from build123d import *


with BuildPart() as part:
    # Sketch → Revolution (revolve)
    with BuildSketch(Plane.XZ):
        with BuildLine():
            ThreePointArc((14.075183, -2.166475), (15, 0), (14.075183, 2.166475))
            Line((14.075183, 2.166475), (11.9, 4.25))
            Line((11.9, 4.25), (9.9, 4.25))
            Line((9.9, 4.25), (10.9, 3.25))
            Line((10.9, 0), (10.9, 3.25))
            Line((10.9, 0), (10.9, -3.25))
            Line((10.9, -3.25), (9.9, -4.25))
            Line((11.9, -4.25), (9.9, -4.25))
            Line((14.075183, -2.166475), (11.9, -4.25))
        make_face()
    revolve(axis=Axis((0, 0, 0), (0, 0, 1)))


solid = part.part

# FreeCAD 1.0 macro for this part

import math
import FreeCAD as App
import Part
import Sketcher

V = App.Vector

doc = App.newDocument("Part")
body = doc.addObject("PartDesign::Body", "Body")

# Sketch on XZ plane
sketch1 = body.newObject("Sketcher::SketchObject", "Sketch")
sketch1.AttachmentSupport = (doc.getObject("XZ_Plane"), [""])
sketch1.MapMode = "FlatFace"
sketch1.addGeometry(Part.ArcOfCircle(Part.Circle(V(12, 0, 0), V(0, 0, 1), 3), math.radians(-46), math.radians(46)), False)
sketch1.addGeometry(Part.LineSegment(V(14.1, 2.2, 0), V(11.9, 4.2, 0)), False)
sketch1.addGeometry(Part.LineSegment(V(11.9, 4.2, 0), V(9.9, 4.2, 0)), False)
sketch1.addGeometry(Part.LineSegment(V(9.9, 4.2, 0), V(10.9, 3.2, 0)), False)
sketch1.addGeometry(Part.LineSegment(V(10.9, 3.2, 0), V(10.9, -3.2, 0)), False)
sketch1.addGeometry(Part.LineSegment(V(10.9, -3.2, 0), V(9.9, -4.2, 0)), False)
sketch1.addGeometry(Part.LineSegment(V(9.9, -4.2, 0), V(11.9, -4.2, 0)), False)
sketch1.addGeometry(Part.LineSegment(V(11.9, -4.2, 0), V(14.1, -2.2, 0)), False)
sketch1.addConstraint(Sketcher.Constraint("Tangent", 0, 2, 1, 1))
sketch1.addConstraint(Sketcher.Constraint("Coincident", 1, 2, 2, 1))
sketch1.addConstraint(Sketcher.Constraint("Coincident", 2, 2, 3, 1))
sketch1.addConstraint(Sketcher.Constraint("Coincident", 3, 2, 4, 1))
sketch1.addConstraint(Sketcher.Constraint("Coincident", 4, 2, 5, 1))
sketch1.addConstraint(Sketcher.Constraint("Coincident", 5, 2, 6, 1))
sketch1.addConstraint(Sketcher.Constraint("Coincident", 6, 2, 7, 1))
sketch1.addConstraint(Sketcher.Constraint("Tangent", 7, 2, 0, 1))
sketch1.addConstraint(Sketcher.Constraint("Horizontal", 2))
sketch1.addConstraint(Sketcher.Constraint("Vertical", 4))
sketch1.addConstraint(Sketcher.Constraint("Horizontal", 6))
sketch1.addConstraint(Sketcher.Constraint("Symmetric", 2, 2, 5, 2, -1))
sketch1.addConstraint(Sketcher.Constraint("Symmetric", 0, 2, 7, 2, -1))
sketch1.addConstraint(Sketcher.Constraint("Perpendicular", 3, 5))
sketch1.addConstraint(Sketcher.Constraint("Equal", 3, 5))
sketch1.addConstraint(Sketcher.Constraint("Radius", 0, 2.999999))
sketch1.addConstraint(Sketcher.Constraint("DistanceX", 2, 2, 2, 1, 2.0))
sketch1.addConstraint(Sketcher.Constraint("DistanceY", 4, 2, 4, 1, 6.5))
sketch1.addConstraint(Sketcher.Constraint("DistanceX", -1, 1, 0, 3, 12.000001))
sketch1.addConstraint(Sketcher.Constraint("DistanceX", 3, 2, 1, 2, 1.0))
sketch1.addConstraint(Sketcher.Constraint("DistanceX", -1, 1, 1, 2, 11.9))
revolution = body.newObject("PartDesign::Revolution", "Revolution")
revolution.Profile = sketch1
revolution.ReferenceAxis = (sketch1, ["V_Axis"])
revolution.Angle = 360

doc.recompute()
